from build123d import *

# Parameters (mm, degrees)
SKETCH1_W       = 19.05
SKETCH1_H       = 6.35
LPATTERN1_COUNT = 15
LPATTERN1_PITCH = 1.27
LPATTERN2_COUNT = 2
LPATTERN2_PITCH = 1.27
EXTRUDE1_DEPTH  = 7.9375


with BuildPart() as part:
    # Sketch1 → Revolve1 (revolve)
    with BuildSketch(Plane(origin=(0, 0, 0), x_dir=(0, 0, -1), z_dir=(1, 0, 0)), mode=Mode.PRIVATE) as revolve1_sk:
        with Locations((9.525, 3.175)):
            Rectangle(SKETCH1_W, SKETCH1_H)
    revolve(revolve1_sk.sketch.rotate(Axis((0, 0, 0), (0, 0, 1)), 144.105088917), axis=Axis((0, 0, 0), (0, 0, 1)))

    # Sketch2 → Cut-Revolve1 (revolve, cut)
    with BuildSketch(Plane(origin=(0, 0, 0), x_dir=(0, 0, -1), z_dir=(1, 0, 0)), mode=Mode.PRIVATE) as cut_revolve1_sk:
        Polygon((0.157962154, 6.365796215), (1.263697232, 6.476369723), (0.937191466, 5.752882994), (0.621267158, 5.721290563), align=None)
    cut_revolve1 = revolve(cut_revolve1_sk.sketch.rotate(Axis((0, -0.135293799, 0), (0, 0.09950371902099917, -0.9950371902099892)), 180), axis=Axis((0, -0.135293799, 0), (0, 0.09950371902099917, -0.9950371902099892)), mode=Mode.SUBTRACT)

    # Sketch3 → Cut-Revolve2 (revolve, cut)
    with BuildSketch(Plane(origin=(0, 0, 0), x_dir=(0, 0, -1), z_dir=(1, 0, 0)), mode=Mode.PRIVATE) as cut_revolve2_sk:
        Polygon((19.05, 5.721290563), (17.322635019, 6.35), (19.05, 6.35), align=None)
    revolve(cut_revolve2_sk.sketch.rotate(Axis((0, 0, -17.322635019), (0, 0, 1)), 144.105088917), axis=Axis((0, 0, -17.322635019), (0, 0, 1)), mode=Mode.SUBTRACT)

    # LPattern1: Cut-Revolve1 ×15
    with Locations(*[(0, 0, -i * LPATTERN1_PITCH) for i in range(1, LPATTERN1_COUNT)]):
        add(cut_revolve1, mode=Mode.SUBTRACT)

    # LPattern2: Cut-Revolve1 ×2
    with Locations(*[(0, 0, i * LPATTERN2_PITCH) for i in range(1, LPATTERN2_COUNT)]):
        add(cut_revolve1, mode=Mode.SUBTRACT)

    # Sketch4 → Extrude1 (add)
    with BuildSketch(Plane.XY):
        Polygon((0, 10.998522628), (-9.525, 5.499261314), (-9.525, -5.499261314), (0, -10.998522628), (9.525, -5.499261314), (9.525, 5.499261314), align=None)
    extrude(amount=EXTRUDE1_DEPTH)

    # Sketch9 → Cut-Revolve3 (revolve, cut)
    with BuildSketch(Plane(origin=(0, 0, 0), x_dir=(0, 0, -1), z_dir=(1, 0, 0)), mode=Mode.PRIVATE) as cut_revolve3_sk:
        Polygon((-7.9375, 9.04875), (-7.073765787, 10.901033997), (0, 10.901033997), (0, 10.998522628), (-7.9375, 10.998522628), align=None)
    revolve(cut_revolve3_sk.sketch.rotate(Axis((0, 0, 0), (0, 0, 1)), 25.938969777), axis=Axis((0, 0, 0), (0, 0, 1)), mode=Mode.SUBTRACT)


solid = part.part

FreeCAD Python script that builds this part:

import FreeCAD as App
import Part
import Sketcher
from FreeCAD import Vector
Q = App.Units.Quantity


def add_polygon(sketch, points):
    """Adds a closed chain of lines whose ends are joined by coincident constraints."""
    first, n = sketch.GeometryCount, len(points)
    for a, b in zip(points, points[1:] + points[:1]):
        sketch.addGeometry(Part.LineSegment(App.Vector(*a, 0), App.Vector(*b, 0)), False)
    for i in range(n):
        sketch.addConstraint(Sketcher.Constraint("Coincident", first + i, 2, first + (i + 1) % n, 1))

doc = App.newDocument("Part")
body = doc.addObject("PartDesign::Body", "Body")

# Sketch on YZ plane
sketch1 = doc.addObject("Sketcher::SketchObject", "Sketch")
body.addObject(sketch1)
sketch1.AttachmentSupport = (doc.YZ_Plane, [""])
sketch1.MapMode = "FlatFace"
add_polygon(sketch1, [(6.35, 0), (0, 0), (0, -19.05), (6.35, -19.05)])  # lines 0-3
sketch1.addConstraint(Sketcher.Constraint("Horizontal", 0))
sketch1.addConstraint(Sketcher.Constraint("Vertical", 1))
sketch1.addConstraint(Sketcher.Constraint("Horizontal", 2))
sketch1.addConstraint(Sketcher.Constraint("Vertical", 3))
sketch1.addConstraint(Sketcher.Constraint("Coincident", 0, 2, -1, 1))
sketch1.addConstraint(Sketcher.Constraint("DistanceX", 0, 2, 0, 1, Q("0.25 in")))
sketch1.addConstraint(Sketcher.Constraint("DistanceY", 1, 2, 1, 1, Q("0.75 in")))
revolution = doc.addObject("PartDesign::Revolution", "Revolution")
body.addObject(revolution)
revolution.Profile = sketch1
revolution.ReferenceAxis = (sketch1, ["V_Axis"])
revolution.Angle = 360

# Sketch on YZ plane
sketch2 = doc.addObject("Sketcher::SketchObject", "Sketch001")
body.addObject(sketch2)
sketch2.AttachmentSupport = (doc.YZ_Plane, [""])
sketch2.MapMode = "FlatFace"
add_polygon(sketch2, [(6.47637, -1.263697), (6.365796, -0.157962), (5.721291, -0.621267), (5.752883, -0.937191)])  # lines 0-3
sketch2.addGeometry(Part.LineSegment(Vector(-0.055287, -0.80007, 0), Vector(0.055287, -1.905806, 0)), True)  # axis
sketch2.addConstraint(Sketcher.Constraint("Parallel", 0, 2))
sketch2.addConstraint(Sketcher.Constraint("Parallel", 2, 4))
sketch2.addConstraint(Sketcher.Constraint("Equal", 1, 3))
sketch2.addConstraint(Sketcher.Constraint("Equal", 0, 4))
sketch2.addConstraint(Sketcher.Constraint("Distance", 1, Q("0.03125 in")))
sketch2.addConstraint(Sketcher.Constraint("Distance", 2, Q("0.0125 in")))
sketch2.addConstraint(Sketcher.Constraint("Distance", 0, 1.11125))
sketch2.addConstraint(Sketcher.Constraint("DistanceX", -1, 1, 1, 2, 5.721291))
sketch2.addConstraint(Sketcher.Constraint("DistanceY", 2, 2, -1, 1, 0.937191))
sketch2.addConstraint(Sketcher.Constraint("DistanceX", -1, 1, 3, 2, 6.47637))
sketch2.addConstraint(Sketcher.Constraint("DistanceY", 4, 1, -1, 1, 0.80007))
sketch2.addConstraint(Sketcher.Constraint("DistanceX", 4, 1, 2, 2, 5.80817))
groove = doc.addObject("PartDesign::Groove", "Groove")
body.addObject(groove)
groove.Profile = sketch2
groove.ReferenceAxis = (sketch2, ["Axis0"])
groove.Angle = 360

# Sketch on YZ plane
sketch3 = doc.addObject("Sketcher::SketchObject", "Sketch002")
body.addObject(sketch3)
sketch3.AttachmentSupport = (doc.YZ_Plane, [""])
sketch3.MapMode = "FlatFace"
add_polygon(sketch3, [(6.35, -17.322635), (5.721291, -19.05), (6.35, -19.05)])  # lines 0-2
sketch3.addConstraint(Sketcher.Constraint("Horizontal", 1))
sketch3.addConstraint(Sketcher.Constraint("Vertical", 2))
sketch3.addConstraint(Sketcher.Constraint("Angle", 0, Q("-110 deg")))
sketch3.addConstraint(Sketcher.Constraint("DistanceY", 0, 2, -1, 1, Q("0.75 in")))
sketch3.addConstraint(Sketcher.Constraint("DistanceX", -1, 1, 1, 2, Q("0.25 in")))
sketch3.addConstraint(Sketcher.Constraint("DistanceX", 1, 1, 1, 2, 0.628709))
groove2 = doc.addObject("PartDesign::Groove", "Groove001")
body.addObject(groove2)
groove2.Profile = sketch3
groove2.ReferenceAxis = (sketch3, ["V_Axis"])
groove2.Angle = 360
doc.recompute()

linearpattern = doc.addObject("PartDesign::LinearPattern", "LinearPattern")
body.addObject(linearpattern)
linearpattern.Originals = [groove]
linearpattern.Direction = (doc.Z_Axis, [""])
linearpattern.Mode = "offset"
linearpattern.Offset = Q("0.05 in")
linearpattern.Occurrences = 15
linearpattern.Reversed = True
body.Tip = linearpattern
doc.recompute()

linearpattern2 = doc.addObject("PartDesign::LinearPattern", "LinearPattern001")
body.addObject(linearpattern2)
linearpattern2.Originals = [groove]
linearpattern2.Direction = (doc.Z_Axis, [""])
linearpattern2.Mode = "offset"
linearpattern2.Offset = Q("0.05 in")
linearpattern2.Occurrences = 2
body.Tip = linearpattern2

# Sketch on XY plane
sketch4 = doc.addObject("Sketcher::SketchObject", "Sketch003")
body.addObject(sketch4)
sketch4.AttachmentSupport = (doc.XY_Plane, [""])
sketch4.MapMode = "FlatFace"
add_polygon(sketch4, [(0, 10.998523), (-9.525, 5.499261), (-9.525, -5.499261), (0, -10.998523), (9.525, -5.499261), (9.525, 5.499261)])  # lines 0-5
sketch4.addConstraint(Sketcher.Constraint("Vertical", 1))
sketch4.addConstraint(Sketcher.Constraint("Vertical", 4))
sketch4.addConstraint(Sketcher.Constraint("Symmetric", 0, 2, 3, 2, -1, 1))
sketch4.addConstraint(Sketcher.Constraint("Symmetric", 2, 2, 5, 2, -1, 1))
sketch4.addConstraint(Sketcher.Constraint("PointOnObject", 2, 2, -2))
sketch4.addConstraint(Sketcher.Constraint("Parallel", 2, 5))
sketch4.addConstraint(Sketcher.Constraint("Horizontal", 1, 2, 3, 2))
sketch4.addConstraint(Sketcher.Constraint("Angle", 0, Q("-150 deg")))
sketch4.addConstraint(Sketcher.Constraint("DistanceX", 1, 2, 3, 2, Q("0.75 in")))
sketch4.addConstraint(Sketcher.Constraint("DistanceY", 1, 2, 1, 1, 10.998523))
pad1 = doc.addObject("PartDesign::Pad", "Pad")
body.addObject(pad1)
pad1.Profile = sketch4
pad1.Length = Q("0.3125 in")

# Sketch on YZ plane
sketch5 = doc.addObject("Sketcher::SketchObject", "Sketch004")
body.addObject(sketch5)
sketch5.AttachmentSupport = (doc.YZ_Plane, [""])
sketch5.MapMode = "FlatFace"
add_polygon(sketch5, [(9.04875, 7.9375), (10.901034, 7.073766), (10.901034, 0), (10.998523, 0), (10.998523, 7.9375)])  # lines 0-4
sketch5.addConstraint(Sketcher.Constraint("Vertical", 1))
sketch5.addConstraint(Sketcher.Constraint("Horizontal", 2))
sketch5.addConstraint(Sketcher.Constraint("Vertical", 3))
sketch5.addConstraint(Sketcher.Constraint("Horizontal", 4))
sketch5.addConstraint(Sketcher.Constraint("PointOnObject", 1, 2, -1))
sketch5.addConstraint(Sketcher.Constraint("Angle", 0, Q("-25 deg")))
sketch5.addConstraint(Sketcher.Constraint("DistanceY", 3, 1, 3, 2, Q("0.3125 in")))
sketch5.addConstraint(Sketcher.Constraint("DistanceX", 2, 1, 2, 2, 0.097489))
sketch5.addConstraint(Sketcher.Constraint("Distance", 0, 2.043769))
sketch5.addConstraint(Sketcher.Constraint("DistanceX", -1, 1, 4, 2, 9.04875))
groove3 = doc.addObject("PartDesign::Groove", "Groove002")
body.addObject(groove3)
groove3.Profile = sketch5
groove3.ReferenceAxis = (sketch5, ["V_Axis"])
groove3.Angle = 360

doc.recompute()
